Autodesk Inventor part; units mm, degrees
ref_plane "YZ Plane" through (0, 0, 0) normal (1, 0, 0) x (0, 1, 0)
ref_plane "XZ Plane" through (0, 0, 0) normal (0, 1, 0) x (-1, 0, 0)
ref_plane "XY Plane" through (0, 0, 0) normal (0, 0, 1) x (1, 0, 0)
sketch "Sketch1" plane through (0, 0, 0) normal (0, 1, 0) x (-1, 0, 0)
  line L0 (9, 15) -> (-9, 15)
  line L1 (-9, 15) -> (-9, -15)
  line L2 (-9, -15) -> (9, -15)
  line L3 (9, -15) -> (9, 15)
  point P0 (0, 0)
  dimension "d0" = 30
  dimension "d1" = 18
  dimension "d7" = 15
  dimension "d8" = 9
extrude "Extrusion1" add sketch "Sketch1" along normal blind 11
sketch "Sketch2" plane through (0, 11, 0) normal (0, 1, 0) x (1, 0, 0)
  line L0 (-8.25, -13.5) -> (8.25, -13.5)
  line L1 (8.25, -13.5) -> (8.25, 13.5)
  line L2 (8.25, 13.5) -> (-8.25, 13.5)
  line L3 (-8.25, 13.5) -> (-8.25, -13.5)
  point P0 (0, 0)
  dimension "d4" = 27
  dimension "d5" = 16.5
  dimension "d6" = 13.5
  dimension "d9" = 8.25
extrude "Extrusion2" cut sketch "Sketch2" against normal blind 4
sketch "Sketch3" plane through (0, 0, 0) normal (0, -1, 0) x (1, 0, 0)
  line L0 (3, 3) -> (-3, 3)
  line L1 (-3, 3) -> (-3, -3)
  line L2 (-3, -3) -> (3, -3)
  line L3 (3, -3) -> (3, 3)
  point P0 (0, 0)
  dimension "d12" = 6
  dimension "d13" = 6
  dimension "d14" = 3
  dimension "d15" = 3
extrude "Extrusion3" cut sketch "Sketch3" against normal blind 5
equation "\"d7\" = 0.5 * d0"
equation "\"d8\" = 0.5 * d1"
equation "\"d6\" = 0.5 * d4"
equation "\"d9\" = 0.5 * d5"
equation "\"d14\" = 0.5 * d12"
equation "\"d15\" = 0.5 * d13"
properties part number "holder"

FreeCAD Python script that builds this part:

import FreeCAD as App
import Part
import Sketcher

V = App.Vector


def add_polygon(sketch, points):
    """Adds a closed chain of lines whose ends are joined by coincident constraints."""
    first, n = sketch.GeometryCount, len(points)
    for a, b in zip(points, points[1:] + points[:1]):
        sketch.addGeometry(Part.LineSegment(App.Vector(*a, 0), App.Vector(*b, 0)), False)
    for i in range(n):
        sketch.addConstraint(Sketcher.Constraint("Coincident", first + i, 2, first + (i + 1) % n, 1))

doc = App.newDocument("Part")
body = doc.addObject("PartDesign::Body", "Body")

sketch1 = body.newObject("Sketcher::SketchObject", "Sketch")
sketch1.AttachmentSupport = (doc.getObject("XZ_Plane"), [""])
sketch1.MapMode = "FlatFace"
add_polygon(sketch1, [(-9, -15), (-9, 15), (9, 15), (9, -15)])
sketch1.addConstraint([
    Sketcher.Constraint("Vertical", 0),
    Sketcher.Constraint("Horizontal", 1),
    Sketcher.Constraint("Vertical", 2),
    Sketcher.Constraint("Horizontal", 3),
    Sketcher.Constraint("Symmetric", 0, 2, 2, 2, -1, 1),
    Sketcher.Constraint("DistanceX", 1, 1, 1, 2, 18.0),
    Sketcher.Constraint("DistanceY", 0, 1, 0, 2, 30.0),
])
pad1 = body.newObject("PartDesign::Pad", "Pad")
pad1.Profile = sketch1
pad1.Length = 11
pad1.Reversed = True

sketch2 = body.newObject("Sketcher::SketchObject", "Sketch001")
sketch2.AttachmentSupport = (doc.getObject("XZ_Plane"), [""])
sketch2.MapMode = "FlatFace"
sketch2.AttachmentOffset = App.Placement(V(0, 0, -11), App.Rotation())
add_polygon(sketch2, [(-8, -14), (-8, 14), (8, 14), (8, -14)])
sketch2.addConstraint([
    Sketcher.Constraint("Vertical", 0),
    Sketcher.Constraint("Horizontal", 1),
    Sketcher.Constraint("Vertical", 2),
    Sketcher.Constraint("Horizontal", 3),
    Sketcher.Constraint("Symmetric", 0, 2, 2, 2, -1, 1),
    Sketcher.Constraint("DistanceY", 0, 1, 0, 2, 27.0),
    Sketcher.Constraint("DistanceX", 1, 1, 1, 2, 16.5),
])
pocket1 = body.newObject("PartDesign::Pocket", "Pocket")
pocket1.Profile = sketch2
pocket1.Length = 4
pocket1.Reversed = True

sketch3 = body.newObject("Sketcher::SketchObject", "Sketch002")
sketch3.AttachmentSupport = (doc.getObject("XZ_Plane"), [""])
sketch3.MapMode = "FlatFace"
add_polygon(sketch3, [(3, -3), (3, 3), (-3, 3), (-3, -3)])
sketch3.addConstraint([
    Sketcher.Constraint("Vertical", 0),
    Sketcher.Constraint("Horizontal", 1),
    Sketcher.Constraint("Vertical", 2),
    Sketcher.Constraint("Horizontal", 3),
    Sketcher.Constraint("Symmetric", 0, 2, 2, 2, -1, 1),
    Sketcher.Constraint("Equal", 3, 0),
    Sketcher.Constraint("DistanceX", 1, 2, 1, 1, 6.0),
])
pocket2 = body.newObject("PartDesign::Pocket", "Pocket001")
pocket2.Profile = sketch3
pocket2.Length = 5

doc.recompute()
